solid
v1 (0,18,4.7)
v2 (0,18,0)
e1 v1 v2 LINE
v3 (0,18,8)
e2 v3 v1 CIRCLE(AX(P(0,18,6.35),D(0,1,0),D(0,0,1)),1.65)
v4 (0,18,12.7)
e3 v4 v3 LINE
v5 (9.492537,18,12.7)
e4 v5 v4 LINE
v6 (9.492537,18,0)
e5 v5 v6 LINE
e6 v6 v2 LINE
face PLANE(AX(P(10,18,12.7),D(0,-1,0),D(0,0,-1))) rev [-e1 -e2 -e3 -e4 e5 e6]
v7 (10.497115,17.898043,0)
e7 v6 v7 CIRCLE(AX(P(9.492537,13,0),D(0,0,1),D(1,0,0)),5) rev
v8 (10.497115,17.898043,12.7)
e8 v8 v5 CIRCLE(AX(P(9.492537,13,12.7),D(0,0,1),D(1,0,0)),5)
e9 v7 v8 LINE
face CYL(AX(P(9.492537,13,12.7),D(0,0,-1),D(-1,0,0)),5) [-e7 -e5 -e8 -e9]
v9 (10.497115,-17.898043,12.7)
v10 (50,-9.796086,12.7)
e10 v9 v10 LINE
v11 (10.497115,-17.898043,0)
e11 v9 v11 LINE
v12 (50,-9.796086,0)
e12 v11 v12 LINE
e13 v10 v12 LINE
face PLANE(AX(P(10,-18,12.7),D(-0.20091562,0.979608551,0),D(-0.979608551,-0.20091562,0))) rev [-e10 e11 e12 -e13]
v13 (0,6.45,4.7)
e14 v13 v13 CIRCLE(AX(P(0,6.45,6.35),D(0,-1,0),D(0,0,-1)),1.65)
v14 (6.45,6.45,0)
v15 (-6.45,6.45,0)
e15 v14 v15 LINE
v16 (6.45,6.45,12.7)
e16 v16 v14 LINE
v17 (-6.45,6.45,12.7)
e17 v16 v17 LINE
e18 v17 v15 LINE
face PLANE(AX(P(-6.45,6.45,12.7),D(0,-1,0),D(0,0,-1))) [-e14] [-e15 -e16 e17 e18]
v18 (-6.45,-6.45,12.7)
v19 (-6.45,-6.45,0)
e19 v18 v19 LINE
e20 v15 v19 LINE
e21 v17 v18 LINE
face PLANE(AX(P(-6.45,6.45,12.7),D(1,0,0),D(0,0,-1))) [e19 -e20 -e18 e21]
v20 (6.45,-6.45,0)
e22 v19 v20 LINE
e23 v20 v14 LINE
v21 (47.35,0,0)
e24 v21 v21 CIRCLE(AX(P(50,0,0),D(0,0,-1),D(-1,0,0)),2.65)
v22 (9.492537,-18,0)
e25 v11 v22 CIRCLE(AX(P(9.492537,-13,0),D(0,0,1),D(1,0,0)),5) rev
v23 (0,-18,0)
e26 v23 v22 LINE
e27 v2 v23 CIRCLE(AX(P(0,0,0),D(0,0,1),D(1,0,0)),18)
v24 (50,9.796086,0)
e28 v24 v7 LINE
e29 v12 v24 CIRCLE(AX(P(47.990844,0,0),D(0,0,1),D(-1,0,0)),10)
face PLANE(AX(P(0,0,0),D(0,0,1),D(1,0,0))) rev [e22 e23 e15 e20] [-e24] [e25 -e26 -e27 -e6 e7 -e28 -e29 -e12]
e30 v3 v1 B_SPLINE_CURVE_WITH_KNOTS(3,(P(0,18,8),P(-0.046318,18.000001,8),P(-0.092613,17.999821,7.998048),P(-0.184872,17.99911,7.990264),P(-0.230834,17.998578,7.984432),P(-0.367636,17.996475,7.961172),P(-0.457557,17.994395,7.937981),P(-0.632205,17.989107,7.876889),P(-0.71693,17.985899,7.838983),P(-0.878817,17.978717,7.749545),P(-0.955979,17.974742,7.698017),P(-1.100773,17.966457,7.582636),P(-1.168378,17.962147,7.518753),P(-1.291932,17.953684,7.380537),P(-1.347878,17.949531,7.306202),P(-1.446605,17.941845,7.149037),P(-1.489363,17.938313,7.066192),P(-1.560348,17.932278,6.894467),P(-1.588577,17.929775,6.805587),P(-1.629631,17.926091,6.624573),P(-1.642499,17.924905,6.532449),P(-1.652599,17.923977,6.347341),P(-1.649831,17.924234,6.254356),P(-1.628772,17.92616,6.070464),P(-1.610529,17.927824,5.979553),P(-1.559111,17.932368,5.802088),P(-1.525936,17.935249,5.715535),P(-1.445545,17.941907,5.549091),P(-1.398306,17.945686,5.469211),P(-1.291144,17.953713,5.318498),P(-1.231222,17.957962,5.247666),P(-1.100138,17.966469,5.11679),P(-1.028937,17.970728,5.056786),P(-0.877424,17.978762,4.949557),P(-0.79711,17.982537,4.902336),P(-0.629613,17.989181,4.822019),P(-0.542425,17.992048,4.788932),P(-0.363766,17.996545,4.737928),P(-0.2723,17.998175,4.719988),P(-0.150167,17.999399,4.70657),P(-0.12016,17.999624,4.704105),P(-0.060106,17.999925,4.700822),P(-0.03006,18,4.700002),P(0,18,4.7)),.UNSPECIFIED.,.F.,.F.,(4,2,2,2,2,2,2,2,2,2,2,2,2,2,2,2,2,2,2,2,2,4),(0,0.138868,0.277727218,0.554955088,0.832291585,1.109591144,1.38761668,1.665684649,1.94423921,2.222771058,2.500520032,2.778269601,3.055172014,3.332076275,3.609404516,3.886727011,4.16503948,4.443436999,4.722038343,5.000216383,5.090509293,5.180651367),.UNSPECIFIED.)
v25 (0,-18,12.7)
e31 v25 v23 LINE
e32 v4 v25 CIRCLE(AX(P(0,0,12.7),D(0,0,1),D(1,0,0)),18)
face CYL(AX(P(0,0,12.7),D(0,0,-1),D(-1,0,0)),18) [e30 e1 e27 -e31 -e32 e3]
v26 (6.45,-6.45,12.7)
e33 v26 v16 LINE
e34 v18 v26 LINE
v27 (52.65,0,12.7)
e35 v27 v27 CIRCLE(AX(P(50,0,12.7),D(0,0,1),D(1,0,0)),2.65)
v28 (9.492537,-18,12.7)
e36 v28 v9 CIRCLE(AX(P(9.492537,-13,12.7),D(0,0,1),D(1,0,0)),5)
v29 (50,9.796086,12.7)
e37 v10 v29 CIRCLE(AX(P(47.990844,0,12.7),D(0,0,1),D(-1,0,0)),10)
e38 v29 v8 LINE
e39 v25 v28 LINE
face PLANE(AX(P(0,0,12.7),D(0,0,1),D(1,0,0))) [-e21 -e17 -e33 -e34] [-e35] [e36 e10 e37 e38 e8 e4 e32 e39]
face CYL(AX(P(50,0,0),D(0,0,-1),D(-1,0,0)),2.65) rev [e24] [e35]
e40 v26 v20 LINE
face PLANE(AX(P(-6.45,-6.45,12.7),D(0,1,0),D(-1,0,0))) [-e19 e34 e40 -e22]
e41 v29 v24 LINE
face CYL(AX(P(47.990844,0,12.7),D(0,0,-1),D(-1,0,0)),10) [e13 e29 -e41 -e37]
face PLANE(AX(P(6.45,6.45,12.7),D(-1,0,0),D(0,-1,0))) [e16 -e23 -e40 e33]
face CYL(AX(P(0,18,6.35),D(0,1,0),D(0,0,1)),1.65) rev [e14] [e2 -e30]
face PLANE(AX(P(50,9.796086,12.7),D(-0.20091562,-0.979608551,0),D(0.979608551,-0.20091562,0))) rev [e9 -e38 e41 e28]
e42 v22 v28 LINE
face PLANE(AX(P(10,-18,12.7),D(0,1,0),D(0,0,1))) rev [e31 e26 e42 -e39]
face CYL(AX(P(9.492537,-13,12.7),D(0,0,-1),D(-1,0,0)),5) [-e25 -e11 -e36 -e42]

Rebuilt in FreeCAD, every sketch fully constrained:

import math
import FreeCAD as App
import Part
import Sketcher
from FreeCAD import Vector


def edges_at(feature, points):
    """Names of the edges that pass closest to the given points."""
    edges = feature.Shape.Edges
    near = lambda p: min(range(len(edges)), key=lambda i: edges[i].distToShape(Part.Vertex(*p))[0])
    return sorted({f"Edge{near(p) + 1}" for p in points})

doc = App.newDocument("Part")
body = doc.addObject("PartDesign::Body", "Body")

sketch1 = doc.addObject("Sketcher::SketchObject", "Sketch")
body.addObject(sketch1)
sketch1.AttachmentSupport = (doc.XY_Plane, [""])
sketch1.MapMode = "FlatFace"
sketch1.addGeometry(Part.ArcOfCircle(Part.Circle(Vector(48, 0, 0), Vector(0, 0, 1), 10), math.radians(-78), math.radians(78)), False)
sketch1.addGeometry(Part.LineSegment(Vector(50, 10, 0), Vector(10, 18, 0)), False)
sketch1.addGeometry(Part.LineSegment(Vector(10, 18, 0), Vector(0, 18, 0)), False)
sketch1.addGeometry(Part.ArcOfCircle(Part.Circle(Vector(0, 0, 0), Vector(0, 0, 1), 18), math.radians(90), math.radians(270)), False)
sketch1.addGeometry(Part.LineSegment(Vector(0, -18, 0), Vector(10, -18, 0)), False)
sketch1.addGeometry(Part.LineSegment(Vector(10, -18, 0), Vector(50, -10, 0)), False)
sketch1.addGeometry(Part.LineSegment(Vector(6, -6, 0), Vector(-6, -6, 0)), False)
sketch1.addGeometry(Part.LineSegment(Vector(-6, -6, 0), Vector(-6, 6, 0)), False)
sketch1.addGeometry(Part.LineSegment(Vector(-6, 6, 0), Vector(6, 6, 0)), False)
sketch1.addGeometry(Part.LineSegment(Vector(6, 6, 0), Vector(6, -6, 0)), False)
sketch1.addConstraint(Sketcher.Constraint("Tangent", 0, 2, 1, 1))
sketch1.addConstraint(Sketcher.Constraint("Coincident", 1, 2, 2, 1))
sketch1.addConstraint(Sketcher.Constraint("Tangent", 2, 2, 3, 1))
sketch1.addConstraint(Sketcher.Constraint("Tangent", 3, 2, 4, 1))
sketch1.addConstraint(Sketcher.Constraint("Coincident", 4, 2, 5, 1))
sketch1.addConstraint(Sketcher.Constraint("Tangent", 5, 2, 0, 1))
sketch1.addConstraint(Sketcher.Constraint("Coincident", 6, 2, 7, 1))
sketch1.addConstraint(Sketcher.Constraint("Coincident", 7, 2, 8, 1))
sketch1.addConstraint(Sketcher.Constraint("Coincident", 8, 2, 9, 1))
sketch1.addConstraint(Sketcher.Constraint("Coincident", 9, 2, 6, 1))
sketch1.addConstraint(Sketcher.Constraint("Horizontal", 2))
sketch1.addConstraint(Sketcher.Constraint("Horizontal", 4))
sketch1.addConstraint(Sketcher.Constraint("Horizontal", 6))
sketch1.addConstraint(Sketcher.Constraint("Vertical", 7))
sketch1.addConstraint(Sketcher.Constraint("Horizontal", 8))
sketch1.addConstraint(Sketcher.Constraint("Vertical", 9))
sketch1.addConstraint(Sketcher.Constraint("Coincident", 3, 3, -1, 1))
sketch1.addConstraint(Sketcher.Constraint("Symmetric", 6, 2, 8, 2, -1, 1))
sketch1.addConstraint(Sketcher.Constraint("Symmetric", 0, 2, 5, 2, -1))
sketch1.addConstraint(Sketcher.Constraint("Equal", 8, 7))
sketch1.addConstraint(Sketcher.Constraint("Radius", 0, 10.0))
sketch1.addConstraint(Sketcher.Constraint("Radius", 3, 18.0))
sketch1.addConstraint(Sketcher.Constraint("DistanceX", 2, 2, 2, 1, 10.0))
sketch1.addConstraint(Sketcher.Constraint("DistanceX", 6, 2, 6, 1, 12.9))
sketch1.addConstraint(Sketcher.Constraint("DistanceX", -1, 1, 0, 2, 50.0))
pad1 = doc.addObject("PartDesign::Pad", "Pad")
body.addObject(pad1)
pad1.Profile = sketch1
pad1.Length = 12.7

sketch2 = doc.addObject("Sketcher::SketchObject", "Sketch001")
body.addObject(sketch2)
sketch2.AttachmentSupport = (doc.XZ_Plane, [""])
sketch2.MapMode = "FlatFace"
sketch2.AttachmentOffset = App.Placement(Vector(0, 0, -18), App.Rotation())
sketch2.addGeometry(Part.Circle(Vector(0, 6.3, 0), Vector(0, 0, 1), 1.6), False)
sketch2.addConstraint(Sketcher.Constraint("PointOnObject", 0, 3, -2))
sketch2.addConstraint(Sketcher.Constraint("Diameter", 0, 3.3))
sketch2.addConstraint(Sketcher.Constraint("DistanceY", -1, 1, 0, 3, 6.35))
doc.recompute()
hole = doc.addObject("PartDesign::Hole", "Hole")
body.addObject(hole)
hole.Profile = sketch2
hole.ThreadType = "None"
hole.Diameter = 3.3
hole.DepthType = "Dimension"
hole.Depth = 11.55
hole.DrillPoint = "Flat"
hole.Reversed = True

sketch3 = doc.addObject("Sketcher::SketchObject", "Sketch002")
body.addObject(sketch3)
sketch3.AttachmentSupport = (doc.XY_Plane, [""])
sketch3.MapMode = "FlatFace"
sketch3.addGeometry(Part.Circle(Vector(50, 0, 0), Vector(0, 0, 1), 2.6), False)
sketch3.addConstraint(Sketcher.Constraint("PointOnObject", 0, 3, -1))
sketch3.addConstraint(Sketcher.Constraint("Diameter", 0, 5.3))
sketch3.addConstraint(Sketcher.Constraint("DistanceX", -1, 1, 0, 3, 50.0))
doc.recompute()
hole2 = doc.addObject("PartDesign::Hole", "Hole001")
body.addObject(hole2)
hole2.Profile = sketch3
hole2.ThreadType = "None"
hole2.Diameter = 5.3
hole2.DepthType = "ThroughAll"
hole2.Reversed = True
doc.recompute()

fillet = doc.addObject("PartDesign::Fillet", "Fillet")
body.addObject(fillet)
fillet.Base = (hole2, edges_at(hole2, [(10, 18, 6.35), (10, -18, 6.35)]))
fillet.Radius = 5

doc.recompute()
